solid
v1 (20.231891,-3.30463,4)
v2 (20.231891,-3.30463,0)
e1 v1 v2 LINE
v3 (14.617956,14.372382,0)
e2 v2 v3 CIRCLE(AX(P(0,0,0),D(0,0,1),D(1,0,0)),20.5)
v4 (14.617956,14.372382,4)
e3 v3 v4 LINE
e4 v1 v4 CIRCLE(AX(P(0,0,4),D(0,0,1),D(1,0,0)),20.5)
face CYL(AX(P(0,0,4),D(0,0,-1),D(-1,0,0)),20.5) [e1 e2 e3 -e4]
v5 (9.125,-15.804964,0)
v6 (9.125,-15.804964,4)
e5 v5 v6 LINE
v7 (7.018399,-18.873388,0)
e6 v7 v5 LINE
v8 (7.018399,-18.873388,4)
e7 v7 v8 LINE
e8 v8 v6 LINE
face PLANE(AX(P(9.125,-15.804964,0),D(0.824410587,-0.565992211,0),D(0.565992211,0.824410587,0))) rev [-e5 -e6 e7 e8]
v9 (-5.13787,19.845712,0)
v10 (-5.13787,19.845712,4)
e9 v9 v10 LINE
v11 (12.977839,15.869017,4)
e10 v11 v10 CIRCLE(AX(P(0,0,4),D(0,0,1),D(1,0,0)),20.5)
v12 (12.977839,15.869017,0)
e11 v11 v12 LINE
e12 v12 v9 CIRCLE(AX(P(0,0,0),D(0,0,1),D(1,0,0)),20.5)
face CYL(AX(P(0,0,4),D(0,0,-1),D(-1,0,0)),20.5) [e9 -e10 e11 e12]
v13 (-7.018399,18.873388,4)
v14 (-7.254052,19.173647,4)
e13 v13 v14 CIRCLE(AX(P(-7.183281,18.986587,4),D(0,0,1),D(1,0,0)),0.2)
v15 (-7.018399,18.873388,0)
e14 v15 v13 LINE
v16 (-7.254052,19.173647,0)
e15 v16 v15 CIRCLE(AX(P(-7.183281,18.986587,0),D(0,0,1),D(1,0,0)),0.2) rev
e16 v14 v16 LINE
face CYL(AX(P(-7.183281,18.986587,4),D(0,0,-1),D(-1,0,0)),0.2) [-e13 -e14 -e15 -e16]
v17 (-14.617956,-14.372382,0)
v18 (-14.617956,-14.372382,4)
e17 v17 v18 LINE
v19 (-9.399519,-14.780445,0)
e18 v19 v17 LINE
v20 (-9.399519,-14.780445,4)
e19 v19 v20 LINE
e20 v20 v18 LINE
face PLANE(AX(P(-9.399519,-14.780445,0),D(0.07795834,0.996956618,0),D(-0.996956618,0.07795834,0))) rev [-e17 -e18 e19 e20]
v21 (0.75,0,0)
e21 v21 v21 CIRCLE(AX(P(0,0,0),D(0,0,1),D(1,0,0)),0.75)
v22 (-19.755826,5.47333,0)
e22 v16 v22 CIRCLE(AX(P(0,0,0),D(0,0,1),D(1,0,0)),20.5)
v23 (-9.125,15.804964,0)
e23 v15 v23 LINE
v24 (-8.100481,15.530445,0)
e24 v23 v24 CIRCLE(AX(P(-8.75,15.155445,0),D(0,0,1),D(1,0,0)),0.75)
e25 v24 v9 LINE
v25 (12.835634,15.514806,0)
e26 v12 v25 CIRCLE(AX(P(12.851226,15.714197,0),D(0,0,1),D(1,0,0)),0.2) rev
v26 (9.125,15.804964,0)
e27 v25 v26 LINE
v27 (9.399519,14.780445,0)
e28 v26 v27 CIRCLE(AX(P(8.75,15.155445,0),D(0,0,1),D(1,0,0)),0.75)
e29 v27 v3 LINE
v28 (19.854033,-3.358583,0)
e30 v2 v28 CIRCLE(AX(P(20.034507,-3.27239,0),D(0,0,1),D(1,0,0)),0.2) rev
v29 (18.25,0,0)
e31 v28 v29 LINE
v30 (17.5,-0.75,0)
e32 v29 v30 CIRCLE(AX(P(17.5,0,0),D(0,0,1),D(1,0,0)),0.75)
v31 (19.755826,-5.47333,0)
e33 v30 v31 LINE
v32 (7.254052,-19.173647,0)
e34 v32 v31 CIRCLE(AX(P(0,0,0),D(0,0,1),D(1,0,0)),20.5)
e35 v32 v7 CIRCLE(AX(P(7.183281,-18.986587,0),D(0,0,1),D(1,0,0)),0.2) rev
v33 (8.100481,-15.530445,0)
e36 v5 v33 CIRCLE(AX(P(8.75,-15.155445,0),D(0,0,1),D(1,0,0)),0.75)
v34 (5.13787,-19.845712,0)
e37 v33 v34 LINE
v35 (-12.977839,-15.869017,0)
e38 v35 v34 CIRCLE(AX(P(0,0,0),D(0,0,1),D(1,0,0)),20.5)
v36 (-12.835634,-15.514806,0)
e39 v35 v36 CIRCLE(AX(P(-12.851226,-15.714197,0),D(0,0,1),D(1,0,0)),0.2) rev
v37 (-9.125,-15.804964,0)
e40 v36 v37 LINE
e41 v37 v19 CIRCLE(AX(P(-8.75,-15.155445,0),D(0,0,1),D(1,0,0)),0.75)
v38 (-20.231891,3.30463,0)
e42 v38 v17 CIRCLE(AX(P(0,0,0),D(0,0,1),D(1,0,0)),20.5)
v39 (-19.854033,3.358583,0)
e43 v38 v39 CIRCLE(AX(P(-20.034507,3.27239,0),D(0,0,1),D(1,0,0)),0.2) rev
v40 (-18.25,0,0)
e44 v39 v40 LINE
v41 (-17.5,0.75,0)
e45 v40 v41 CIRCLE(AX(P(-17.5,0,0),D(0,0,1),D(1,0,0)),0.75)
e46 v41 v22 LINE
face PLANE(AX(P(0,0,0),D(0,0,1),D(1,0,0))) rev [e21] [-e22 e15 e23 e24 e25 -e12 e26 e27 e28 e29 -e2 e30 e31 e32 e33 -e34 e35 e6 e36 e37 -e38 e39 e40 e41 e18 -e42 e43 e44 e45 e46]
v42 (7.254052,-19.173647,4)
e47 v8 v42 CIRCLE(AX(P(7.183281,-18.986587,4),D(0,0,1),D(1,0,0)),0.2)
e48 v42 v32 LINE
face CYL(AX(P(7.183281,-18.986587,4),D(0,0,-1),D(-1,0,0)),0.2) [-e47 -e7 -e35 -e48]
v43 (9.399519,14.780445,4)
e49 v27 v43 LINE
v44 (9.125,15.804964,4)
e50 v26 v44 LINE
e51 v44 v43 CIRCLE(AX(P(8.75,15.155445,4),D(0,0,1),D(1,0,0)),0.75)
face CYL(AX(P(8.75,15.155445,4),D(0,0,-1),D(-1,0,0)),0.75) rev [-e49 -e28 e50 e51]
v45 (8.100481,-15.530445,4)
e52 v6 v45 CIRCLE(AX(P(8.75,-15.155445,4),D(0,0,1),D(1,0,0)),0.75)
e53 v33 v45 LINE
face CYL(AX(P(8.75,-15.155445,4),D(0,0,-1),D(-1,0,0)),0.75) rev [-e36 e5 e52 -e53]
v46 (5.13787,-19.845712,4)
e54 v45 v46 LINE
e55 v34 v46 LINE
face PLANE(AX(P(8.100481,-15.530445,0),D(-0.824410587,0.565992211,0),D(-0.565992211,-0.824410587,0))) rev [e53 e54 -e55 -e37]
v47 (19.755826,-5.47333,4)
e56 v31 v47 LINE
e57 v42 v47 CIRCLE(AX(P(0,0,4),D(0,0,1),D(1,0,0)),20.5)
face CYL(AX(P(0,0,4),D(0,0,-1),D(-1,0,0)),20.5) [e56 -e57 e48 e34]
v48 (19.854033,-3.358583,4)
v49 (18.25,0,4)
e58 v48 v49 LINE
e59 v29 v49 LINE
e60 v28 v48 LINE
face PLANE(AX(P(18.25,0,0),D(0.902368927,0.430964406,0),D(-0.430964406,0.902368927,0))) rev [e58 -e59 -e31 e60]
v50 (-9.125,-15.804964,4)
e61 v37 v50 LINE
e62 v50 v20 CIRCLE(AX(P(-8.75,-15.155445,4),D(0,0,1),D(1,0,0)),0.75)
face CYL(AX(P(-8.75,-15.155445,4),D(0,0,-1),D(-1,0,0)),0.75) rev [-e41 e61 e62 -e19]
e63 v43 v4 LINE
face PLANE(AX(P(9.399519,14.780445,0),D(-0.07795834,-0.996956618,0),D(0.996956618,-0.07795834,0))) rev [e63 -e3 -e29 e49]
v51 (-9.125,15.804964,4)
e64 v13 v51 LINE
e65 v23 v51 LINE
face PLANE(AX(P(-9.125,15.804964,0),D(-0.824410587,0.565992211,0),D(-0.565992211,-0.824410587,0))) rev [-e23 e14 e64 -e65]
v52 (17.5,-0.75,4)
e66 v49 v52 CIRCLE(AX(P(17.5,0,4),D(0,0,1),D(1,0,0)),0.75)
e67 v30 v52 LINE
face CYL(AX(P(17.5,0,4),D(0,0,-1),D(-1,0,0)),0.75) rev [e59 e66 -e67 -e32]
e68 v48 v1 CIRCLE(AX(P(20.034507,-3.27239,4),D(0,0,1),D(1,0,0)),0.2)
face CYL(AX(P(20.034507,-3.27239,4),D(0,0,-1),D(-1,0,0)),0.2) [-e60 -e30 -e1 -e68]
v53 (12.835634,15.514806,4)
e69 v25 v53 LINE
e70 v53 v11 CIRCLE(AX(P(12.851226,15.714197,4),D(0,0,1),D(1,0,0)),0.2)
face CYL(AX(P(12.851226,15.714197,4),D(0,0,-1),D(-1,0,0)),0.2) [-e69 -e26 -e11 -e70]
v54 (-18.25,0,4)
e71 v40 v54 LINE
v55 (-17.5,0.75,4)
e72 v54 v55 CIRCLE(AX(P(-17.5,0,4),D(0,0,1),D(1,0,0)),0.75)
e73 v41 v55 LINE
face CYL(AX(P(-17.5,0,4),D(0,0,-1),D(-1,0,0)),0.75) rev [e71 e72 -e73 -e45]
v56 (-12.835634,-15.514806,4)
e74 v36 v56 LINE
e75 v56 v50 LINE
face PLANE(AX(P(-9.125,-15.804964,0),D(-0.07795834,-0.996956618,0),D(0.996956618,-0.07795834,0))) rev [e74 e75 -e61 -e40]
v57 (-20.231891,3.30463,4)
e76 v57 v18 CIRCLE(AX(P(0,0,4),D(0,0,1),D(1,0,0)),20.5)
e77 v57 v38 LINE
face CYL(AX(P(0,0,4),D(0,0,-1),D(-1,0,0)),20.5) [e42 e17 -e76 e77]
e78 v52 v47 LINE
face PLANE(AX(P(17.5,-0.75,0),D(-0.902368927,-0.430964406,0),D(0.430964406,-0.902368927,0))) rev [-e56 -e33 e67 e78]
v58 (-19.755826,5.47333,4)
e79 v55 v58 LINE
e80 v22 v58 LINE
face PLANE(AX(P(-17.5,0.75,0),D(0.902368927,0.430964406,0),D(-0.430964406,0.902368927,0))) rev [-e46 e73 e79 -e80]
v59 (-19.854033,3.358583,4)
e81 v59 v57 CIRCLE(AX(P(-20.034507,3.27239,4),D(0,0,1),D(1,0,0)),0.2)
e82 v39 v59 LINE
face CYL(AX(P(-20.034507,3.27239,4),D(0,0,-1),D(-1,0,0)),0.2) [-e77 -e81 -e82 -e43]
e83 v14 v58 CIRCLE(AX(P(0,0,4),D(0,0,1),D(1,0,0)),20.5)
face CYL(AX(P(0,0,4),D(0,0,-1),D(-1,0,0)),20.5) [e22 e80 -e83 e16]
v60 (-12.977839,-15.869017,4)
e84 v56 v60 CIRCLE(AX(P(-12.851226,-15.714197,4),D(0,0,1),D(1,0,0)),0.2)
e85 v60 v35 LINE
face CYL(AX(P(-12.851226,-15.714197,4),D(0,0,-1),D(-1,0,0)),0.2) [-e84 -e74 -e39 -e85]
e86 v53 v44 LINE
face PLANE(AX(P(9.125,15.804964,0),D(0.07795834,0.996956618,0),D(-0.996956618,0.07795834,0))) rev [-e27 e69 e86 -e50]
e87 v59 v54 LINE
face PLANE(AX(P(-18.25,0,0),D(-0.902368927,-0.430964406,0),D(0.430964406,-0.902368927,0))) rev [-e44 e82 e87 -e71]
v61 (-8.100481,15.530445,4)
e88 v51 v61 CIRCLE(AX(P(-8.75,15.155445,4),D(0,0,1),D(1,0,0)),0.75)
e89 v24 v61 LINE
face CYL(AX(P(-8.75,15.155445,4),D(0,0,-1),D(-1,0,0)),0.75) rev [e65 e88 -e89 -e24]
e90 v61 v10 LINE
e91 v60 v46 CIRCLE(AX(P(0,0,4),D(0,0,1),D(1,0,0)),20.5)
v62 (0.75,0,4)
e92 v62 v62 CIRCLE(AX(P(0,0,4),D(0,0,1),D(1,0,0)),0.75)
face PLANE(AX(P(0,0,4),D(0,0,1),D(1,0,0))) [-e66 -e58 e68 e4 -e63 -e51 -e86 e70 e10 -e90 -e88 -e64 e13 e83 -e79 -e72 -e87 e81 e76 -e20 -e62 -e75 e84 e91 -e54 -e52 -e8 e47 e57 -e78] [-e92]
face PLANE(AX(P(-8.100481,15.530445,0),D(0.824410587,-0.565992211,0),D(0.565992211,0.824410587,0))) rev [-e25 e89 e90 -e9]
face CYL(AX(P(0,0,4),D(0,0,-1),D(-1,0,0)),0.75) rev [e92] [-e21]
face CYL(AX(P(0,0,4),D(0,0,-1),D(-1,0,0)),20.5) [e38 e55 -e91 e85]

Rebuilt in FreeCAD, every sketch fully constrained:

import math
import FreeCAD as App
import Part
import Sketcher

V = App.Vector
Q = App.Units.Quantity


def edges_at(feature, points):
    """Names of the edges that pass closest to the given points."""
    edges = feature.Shape.Edges
    near = lambda p: min(range(len(edges)), key=lambda i: edges[i].distToShape(Part.Vertex(*p))[0])
    return sorted({f"Edge{near(p) + 1}" for p in points})

doc = App.newDocument("Part")
body = doc.addObject("PartDesign::Body", "Body")

sketch1 = body.newObject("Sketcher::SketchObject", "Sketch")
sketch1.AttachmentSupport = (doc.getObject("XY_Plane"), [""])
sketch1.MapMode = "FlatFace"
sketch1.addGeometry([
    Part.Circle(V(0, 0, 0), V(0, 0, 1), 20.5),
    Part.Circle(V(-8.75, -15.155445, 0), V(0, 0, 1), 0.75),
    Part.Circle(V(8.75, -15.155445, 0), V(0, 0, 1), 0.75),
    Part.Circle(V(-17.5, 0, 0), V(0, 0, 1), 0.75),
    Part.Circle(V(-8.75, 15.155445, 0), V(0, 0, 1), 0.75),
    Part.Circle(V(0, 0, 0), V(0, 0, 1), 0.75),
    Part.Circle(V(17.5, 0, 0), V(0, 0, 1), 0.75),
    Part.Circle(V(8.75, 15.155445, 0), V(0, 0, 1), 0.75),
], False)
sketch1.addConstraint([
    Sketcher.Constraint("Coincident", 0, 3, -1, 1),
    Sketcher.Constraint("Coincident", 5, 3, -1, 1),
    Sketcher.Constraint("Equal", 1, 2),
    Sketcher.Constraint("Equal", 2, 3),
    Sketcher.Constraint("Equal", 3, 4),
    Sketcher.Constraint("Equal", 4, 5),
    Sketcher.Constraint("Equal", 5, 6),
    Sketcher.Constraint("Equal", 6, 7),
    Sketcher.Constraint("Symmetric", 2, 3, 4, 3, -1, 1),
    Sketcher.Constraint("Symmetric", 3, 3, 6, 3, -1, 1),
    Sketcher.Constraint("Symmetric", 1, 3, 7, 3, -1, 1),
    Sketcher.Constraint("Symmetric", 1, 3, 2, 3, -2),
    Sketcher.Constraint("PointOnObject", 3, 3, -1),
    Sketcher.Constraint("Diameter", 0, Q("41 mm")),
    Sketcher.Constraint("Diameter", 1, Q("1.5 mm")),
    Sketcher.Constraint("DistanceX", 3, 3, -1, 1, Q("17.5 mm")),
    Sketcher.Constraint("DistanceX", 1, 3, 2, 3, Q("17.5 mm")),
    Sketcher.Constraint("DistanceY", 1, 3, 4, 3, Q("30.310889 mm")),
])
pad1 = body.newObject("PartDesign::Pad", "Pad")
pad1.Profile = sketch1
pad1.Length = 4

sketch2 = body.newObject("Sketcher::SketchObject", "Sketch001")
sketch2.AttachmentSupport = (doc.getObject("XY_Plane"), [""])
sketch2.MapMode = "FlatFace"
sketch2.AttachmentOffset = App.Placement(V(0, 0, 4), App.Rotation())
sketch2.addGeometry([
    Part.LineSegment(V(-20.121848, 3.919343, 0), V(-18.25, 0, 0)),
    Part.ArcOfCircle(Part.Circle(V(-17.5, 0, 0), V(0, 0, 1), 0.75), math.radians(180), math.radians(450)),
    Part.LineSegment(V(-17.5, 0.75, 0), V(-19.755826, 5.47333, 0)),
    Part.ArcOfCircle(Part.Circle(V(0, 0, 0), V(0, 0, 1), 20.5), math.radians(164.514665), math.radians(168.97791)),
    Part.LineSegment(V(-6.666674, 19.385703, 0), V(-9.125, 15.804964, 0)),
    Part.ArcOfCircle(Part.Circle(V(-8.75, 15.155445, 0), V(0, 0, 1), 0.75), math.radians(120), math.radians(390)),
    Part.LineSegment(V(-8.100481, 15.530445, 0), V(-5.13787, 19.845712, 0)),
    Part.ArcOfCircle(Part.Circle(V(0, 0, 0), V(0, 0, 1), 20.5), math.radians(104.514665), math.radians(108.97791)),
    Part.LineSegment(V(13.455174, 15.46636, 0), V(9.125, 15.804964, 0)),
    Part.ArcOfCircle(Part.Circle(V(8.75, 15.155445, 0), V(0, 0, 1), 0.75), math.radians(60), math.radians(330)),
    Part.LineSegment(V(9.399519, 14.780445, 0), V(14.617956, 14.372382, 0)),
    Part.ArcOfCircle(Part.Circle(V(0, 0, 0), V(0, 0, 1), 20.5), math.radians(44.514665), math.radians(48.97791)),
    Part.LineSegment(V(20.121848, -3.919343, 0), V(18.25, 0, 0)),
    Part.ArcOfCircle(Part.Circle(V(17.5, 0, 0), V(0, 0, 1), 0.75), math.radians(0), math.radians(270)),
    Part.LineSegment(V(17.5, -0.75, 0), V(19.755826, -5.47333, 0)),
    Part.ArcOfCircle(Part.Circle(V(0, 0, 0), V(0, 0, 1), 20.5), math.radians(-15.485335), math.radians(-11.02209)),
    Part.LineSegment(V(6.666674, -19.385703, 0), V(9.125, -15.804964, 0)),
    Part.ArcOfCircle(Part.Circle(V(8.75, -15.155445, 0), V(0, 0, 1), 0.75), math.radians(-60), math.radians(210)),
    Part.LineSegment(V(8.100481, -15.530445, 0), V(5.13787, -19.845712, 0)),
    Part.ArcOfCircle(Part.Circle(V(0, 0, 0), V(0, 0, 1), 20.5), math.radians(-75.485335), math.radians(-71.02209)),
    Part.LineSegment(V(-13.455174, -15.46636, 0), V(-9.125, -15.804964, 0)),
    Part.ArcOfCircle(Part.Circle(V(-8.75, -15.155445, 0), V(0, 0, 1), 0.75), math.radians(-120), math.radians(150)),
    Part.LineSegment(V(-9.399519, -14.780445, 0), V(-14.617956, -14.372382, 0)),
    Part.ArcOfCircle(Part.Circle(V(0, 0, 0), V(0, 0, 1), 20.5), math.radians(-135.485335), math.radians(-131.02209)),
], False)
sketch2.addConstraint([
    Sketcher.Constraint("Coincident", 0, 2, 1, 1),
    Sketcher.Constraint("Coincident", 1, 2, 2, 1),
    Sketcher.Constraint("Coincident", 2, 2, 3, 1),
    Sketcher.Constraint("Coincident", 3, 2, 0, 1),
    Sketcher.Constraint("Coincident", 4, 2, 5, 1),
    Sketcher.Constraint("Coincident", 5, 2, 6, 1),
    Sketcher.Constraint("Coincident", 6, 2, 7, 1),
    Sketcher.Constraint("Coincident", 7, 2, 4, 1),
    Sketcher.Constraint("Coincident", 8, 2, 9, 1),
    Sketcher.Constraint("Coincident", 9, 2, 10, 1),
    Sketcher.Constraint("Coincident", 10, 2, 11, 1),
    Sketcher.Constraint("Coincident", 11, 2, 8, 1),
    Sketcher.Constraint("Coincident", 12, 2, 13, 1),
    Sketcher.Constraint("Coincident", 13, 2, 14, 1),
    Sketcher.Constraint("Coincident", 14, 2, 15, 1),
    Sketcher.Constraint("Coincident", 15, 2, 12, 1),
    Sketcher.Constraint("Coincident", 16, 2, 17, 1),
    Sketcher.Constraint("Coincident", 17, 2, 18, 1),
    Sketcher.Constraint("Coincident", 18, 2, 19, 1),
    Sketcher.Constraint("Coincident", 19, 2, 16, 1),
    Sketcher.Constraint("Coincident", 20, 2, 21, 1),
    Sketcher.Constraint("Coincident", 21, 2, 22, 1),
    Sketcher.Constraint("Coincident", 22, 2, 23, 1),
    Sketcher.Constraint("Coincident", 23, 2, 20, 1),
    Sketcher.Constraint("Coincident", 3, 3, -1, 1),
    Sketcher.Constraint("Coincident", 7, 3, -1, 1),
    Sketcher.Constraint("Coincident", 11, 3, -1, 1),
    Sketcher.Constraint("Coincident", 15, 3, -1, 1),
    Sketcher.Constraint("Coincident", 19, 3, -1, 1),
    Sketcher.Constraint("Coincident", 23, 3, -1, 1),
    Sketcher.Constraint("Equal", 1, 5),
    Sketcher.Constraint("Equal", 3, 7),
    Sketcher.Constraint("Equal", 5, 9),
    Sketcher.Constraint("Equal", 7, 11),
    Sketcher.Constraint("Equal", 9, 13),
    Sketcher.Constraint("Equal", 11, 15),
    Sketcher.Constraint("Equal", 13, 17),
    Sketcher.Constraint("Equal", 15, 19),
    Sketcher.Constraint("Equal", 17, 21),
    Sketcher.Constraint("Equal", 19, 23),
    Sketcher.Constraint("Symmetric", 1, 3, 13, 3, -1, 1),
    Sketcher.Constraint("Symmetric", 5, 3, 17, 3, -1, 1),
    Sketcher.Constraint("Symmetric", 9, 3, 21, 3, -1, 1),
    Sketcher.Constraint("Symmetric", 5, 3, 9, 3, -2),
    Sketcher.Constraint("PointOnObject", 1, 3, -1),
    Sketcher.Constraint("PointOnObject", 0, 2, -1),
    Sketcher.Constraint("PointOnObject", 12, 2, -1),
    Sketcher.Constraint("Parallel", 0, 2),
    Sketcher.Constraint("Parallel", 4, 6),
    Sketcher.Constraint("Parallel", 8, 10),
    Sketcher.Constraint("Parallel", 2, 12),
    Sketcher.Constraint("Parallel", 12, 14),
    Sketcher.Constraint("Parallel", 6, 16),
    Sketcher.Constraint("Parallel", 16, 18),
    Sketcher.Constraint("Parallel", 10, 20),
    Sketcher.Constraint("Parallel", 20, 22),
    Sketcher.Constraint("Horizontal", 4, 2, 8, 2),
    Sketcher.Constraint("Horizontal", 16, 2, 20, 2),
    Sketcher.Constraint("Vertical", 8, 2, 16, 2),
    Sketcher.Constraint("Equal", 0, 4),
    Sketcher.Constraint("Equal", 2, 6),
    Sketcher.Constraint("Equal", 4, 8),
    Sketcher.Constraint("Equal", 6, 10),
    Sketcher.Constraint("Equal", 10, 14),
    Sketcher.Constraint("Equal", 14, 18),
    Sketcher.Constraint("Equal", 18, 22),
    Sketcher.Constraint("Radius", 3, Q("20.5 mm")),
    Sketcher.Constraint("Radius", 1, Q("0.75 mm")),
    Sketcher.Constraint("DistanceX", 1, 3, -1, 1, Q("17.5 mm")),
    Sketcher.Constraint("DistanceX", 1, 2, -1, 1, Q("17.5 mm")),
    Sketcher.Constraint("DistanceX", 5, 3, 9, 3, Q("17.5 mm")),
    Sketcher.Constraint("DistanceX", 4, 2, -1, 1, Q("9.125 mm")),
    Sketcher.Constraint("DistanceY", 5, 3, 5, 2, Q("0.375 mm")),
    Sketcher.Constraint("DistanceY", 3, 2, 5, 3, Q("11.236102 mm")),
])
pocket1 = body.newObject("PartDesign::Pocket", "Pocket")
pocket1.Profile = sketch2
pocket1.Type = "ThroughAll"
doc.recompute()

fillet = body.newObject("PartDesign::Fillet", "Fillet")
fillet.Base = (pocket1, edges_at(pocket1, [
    (6.667, -19.386, 2),
    (-13.455, -15.466, 2),
    (-20.122, 3.919, 2),
    (-6.667, 19.386, 2),
    (13.455, 15.466, 2),
    (20.122, -3.919, 2),
]))
fillet.Radius = 0.2

doc.recompute()
